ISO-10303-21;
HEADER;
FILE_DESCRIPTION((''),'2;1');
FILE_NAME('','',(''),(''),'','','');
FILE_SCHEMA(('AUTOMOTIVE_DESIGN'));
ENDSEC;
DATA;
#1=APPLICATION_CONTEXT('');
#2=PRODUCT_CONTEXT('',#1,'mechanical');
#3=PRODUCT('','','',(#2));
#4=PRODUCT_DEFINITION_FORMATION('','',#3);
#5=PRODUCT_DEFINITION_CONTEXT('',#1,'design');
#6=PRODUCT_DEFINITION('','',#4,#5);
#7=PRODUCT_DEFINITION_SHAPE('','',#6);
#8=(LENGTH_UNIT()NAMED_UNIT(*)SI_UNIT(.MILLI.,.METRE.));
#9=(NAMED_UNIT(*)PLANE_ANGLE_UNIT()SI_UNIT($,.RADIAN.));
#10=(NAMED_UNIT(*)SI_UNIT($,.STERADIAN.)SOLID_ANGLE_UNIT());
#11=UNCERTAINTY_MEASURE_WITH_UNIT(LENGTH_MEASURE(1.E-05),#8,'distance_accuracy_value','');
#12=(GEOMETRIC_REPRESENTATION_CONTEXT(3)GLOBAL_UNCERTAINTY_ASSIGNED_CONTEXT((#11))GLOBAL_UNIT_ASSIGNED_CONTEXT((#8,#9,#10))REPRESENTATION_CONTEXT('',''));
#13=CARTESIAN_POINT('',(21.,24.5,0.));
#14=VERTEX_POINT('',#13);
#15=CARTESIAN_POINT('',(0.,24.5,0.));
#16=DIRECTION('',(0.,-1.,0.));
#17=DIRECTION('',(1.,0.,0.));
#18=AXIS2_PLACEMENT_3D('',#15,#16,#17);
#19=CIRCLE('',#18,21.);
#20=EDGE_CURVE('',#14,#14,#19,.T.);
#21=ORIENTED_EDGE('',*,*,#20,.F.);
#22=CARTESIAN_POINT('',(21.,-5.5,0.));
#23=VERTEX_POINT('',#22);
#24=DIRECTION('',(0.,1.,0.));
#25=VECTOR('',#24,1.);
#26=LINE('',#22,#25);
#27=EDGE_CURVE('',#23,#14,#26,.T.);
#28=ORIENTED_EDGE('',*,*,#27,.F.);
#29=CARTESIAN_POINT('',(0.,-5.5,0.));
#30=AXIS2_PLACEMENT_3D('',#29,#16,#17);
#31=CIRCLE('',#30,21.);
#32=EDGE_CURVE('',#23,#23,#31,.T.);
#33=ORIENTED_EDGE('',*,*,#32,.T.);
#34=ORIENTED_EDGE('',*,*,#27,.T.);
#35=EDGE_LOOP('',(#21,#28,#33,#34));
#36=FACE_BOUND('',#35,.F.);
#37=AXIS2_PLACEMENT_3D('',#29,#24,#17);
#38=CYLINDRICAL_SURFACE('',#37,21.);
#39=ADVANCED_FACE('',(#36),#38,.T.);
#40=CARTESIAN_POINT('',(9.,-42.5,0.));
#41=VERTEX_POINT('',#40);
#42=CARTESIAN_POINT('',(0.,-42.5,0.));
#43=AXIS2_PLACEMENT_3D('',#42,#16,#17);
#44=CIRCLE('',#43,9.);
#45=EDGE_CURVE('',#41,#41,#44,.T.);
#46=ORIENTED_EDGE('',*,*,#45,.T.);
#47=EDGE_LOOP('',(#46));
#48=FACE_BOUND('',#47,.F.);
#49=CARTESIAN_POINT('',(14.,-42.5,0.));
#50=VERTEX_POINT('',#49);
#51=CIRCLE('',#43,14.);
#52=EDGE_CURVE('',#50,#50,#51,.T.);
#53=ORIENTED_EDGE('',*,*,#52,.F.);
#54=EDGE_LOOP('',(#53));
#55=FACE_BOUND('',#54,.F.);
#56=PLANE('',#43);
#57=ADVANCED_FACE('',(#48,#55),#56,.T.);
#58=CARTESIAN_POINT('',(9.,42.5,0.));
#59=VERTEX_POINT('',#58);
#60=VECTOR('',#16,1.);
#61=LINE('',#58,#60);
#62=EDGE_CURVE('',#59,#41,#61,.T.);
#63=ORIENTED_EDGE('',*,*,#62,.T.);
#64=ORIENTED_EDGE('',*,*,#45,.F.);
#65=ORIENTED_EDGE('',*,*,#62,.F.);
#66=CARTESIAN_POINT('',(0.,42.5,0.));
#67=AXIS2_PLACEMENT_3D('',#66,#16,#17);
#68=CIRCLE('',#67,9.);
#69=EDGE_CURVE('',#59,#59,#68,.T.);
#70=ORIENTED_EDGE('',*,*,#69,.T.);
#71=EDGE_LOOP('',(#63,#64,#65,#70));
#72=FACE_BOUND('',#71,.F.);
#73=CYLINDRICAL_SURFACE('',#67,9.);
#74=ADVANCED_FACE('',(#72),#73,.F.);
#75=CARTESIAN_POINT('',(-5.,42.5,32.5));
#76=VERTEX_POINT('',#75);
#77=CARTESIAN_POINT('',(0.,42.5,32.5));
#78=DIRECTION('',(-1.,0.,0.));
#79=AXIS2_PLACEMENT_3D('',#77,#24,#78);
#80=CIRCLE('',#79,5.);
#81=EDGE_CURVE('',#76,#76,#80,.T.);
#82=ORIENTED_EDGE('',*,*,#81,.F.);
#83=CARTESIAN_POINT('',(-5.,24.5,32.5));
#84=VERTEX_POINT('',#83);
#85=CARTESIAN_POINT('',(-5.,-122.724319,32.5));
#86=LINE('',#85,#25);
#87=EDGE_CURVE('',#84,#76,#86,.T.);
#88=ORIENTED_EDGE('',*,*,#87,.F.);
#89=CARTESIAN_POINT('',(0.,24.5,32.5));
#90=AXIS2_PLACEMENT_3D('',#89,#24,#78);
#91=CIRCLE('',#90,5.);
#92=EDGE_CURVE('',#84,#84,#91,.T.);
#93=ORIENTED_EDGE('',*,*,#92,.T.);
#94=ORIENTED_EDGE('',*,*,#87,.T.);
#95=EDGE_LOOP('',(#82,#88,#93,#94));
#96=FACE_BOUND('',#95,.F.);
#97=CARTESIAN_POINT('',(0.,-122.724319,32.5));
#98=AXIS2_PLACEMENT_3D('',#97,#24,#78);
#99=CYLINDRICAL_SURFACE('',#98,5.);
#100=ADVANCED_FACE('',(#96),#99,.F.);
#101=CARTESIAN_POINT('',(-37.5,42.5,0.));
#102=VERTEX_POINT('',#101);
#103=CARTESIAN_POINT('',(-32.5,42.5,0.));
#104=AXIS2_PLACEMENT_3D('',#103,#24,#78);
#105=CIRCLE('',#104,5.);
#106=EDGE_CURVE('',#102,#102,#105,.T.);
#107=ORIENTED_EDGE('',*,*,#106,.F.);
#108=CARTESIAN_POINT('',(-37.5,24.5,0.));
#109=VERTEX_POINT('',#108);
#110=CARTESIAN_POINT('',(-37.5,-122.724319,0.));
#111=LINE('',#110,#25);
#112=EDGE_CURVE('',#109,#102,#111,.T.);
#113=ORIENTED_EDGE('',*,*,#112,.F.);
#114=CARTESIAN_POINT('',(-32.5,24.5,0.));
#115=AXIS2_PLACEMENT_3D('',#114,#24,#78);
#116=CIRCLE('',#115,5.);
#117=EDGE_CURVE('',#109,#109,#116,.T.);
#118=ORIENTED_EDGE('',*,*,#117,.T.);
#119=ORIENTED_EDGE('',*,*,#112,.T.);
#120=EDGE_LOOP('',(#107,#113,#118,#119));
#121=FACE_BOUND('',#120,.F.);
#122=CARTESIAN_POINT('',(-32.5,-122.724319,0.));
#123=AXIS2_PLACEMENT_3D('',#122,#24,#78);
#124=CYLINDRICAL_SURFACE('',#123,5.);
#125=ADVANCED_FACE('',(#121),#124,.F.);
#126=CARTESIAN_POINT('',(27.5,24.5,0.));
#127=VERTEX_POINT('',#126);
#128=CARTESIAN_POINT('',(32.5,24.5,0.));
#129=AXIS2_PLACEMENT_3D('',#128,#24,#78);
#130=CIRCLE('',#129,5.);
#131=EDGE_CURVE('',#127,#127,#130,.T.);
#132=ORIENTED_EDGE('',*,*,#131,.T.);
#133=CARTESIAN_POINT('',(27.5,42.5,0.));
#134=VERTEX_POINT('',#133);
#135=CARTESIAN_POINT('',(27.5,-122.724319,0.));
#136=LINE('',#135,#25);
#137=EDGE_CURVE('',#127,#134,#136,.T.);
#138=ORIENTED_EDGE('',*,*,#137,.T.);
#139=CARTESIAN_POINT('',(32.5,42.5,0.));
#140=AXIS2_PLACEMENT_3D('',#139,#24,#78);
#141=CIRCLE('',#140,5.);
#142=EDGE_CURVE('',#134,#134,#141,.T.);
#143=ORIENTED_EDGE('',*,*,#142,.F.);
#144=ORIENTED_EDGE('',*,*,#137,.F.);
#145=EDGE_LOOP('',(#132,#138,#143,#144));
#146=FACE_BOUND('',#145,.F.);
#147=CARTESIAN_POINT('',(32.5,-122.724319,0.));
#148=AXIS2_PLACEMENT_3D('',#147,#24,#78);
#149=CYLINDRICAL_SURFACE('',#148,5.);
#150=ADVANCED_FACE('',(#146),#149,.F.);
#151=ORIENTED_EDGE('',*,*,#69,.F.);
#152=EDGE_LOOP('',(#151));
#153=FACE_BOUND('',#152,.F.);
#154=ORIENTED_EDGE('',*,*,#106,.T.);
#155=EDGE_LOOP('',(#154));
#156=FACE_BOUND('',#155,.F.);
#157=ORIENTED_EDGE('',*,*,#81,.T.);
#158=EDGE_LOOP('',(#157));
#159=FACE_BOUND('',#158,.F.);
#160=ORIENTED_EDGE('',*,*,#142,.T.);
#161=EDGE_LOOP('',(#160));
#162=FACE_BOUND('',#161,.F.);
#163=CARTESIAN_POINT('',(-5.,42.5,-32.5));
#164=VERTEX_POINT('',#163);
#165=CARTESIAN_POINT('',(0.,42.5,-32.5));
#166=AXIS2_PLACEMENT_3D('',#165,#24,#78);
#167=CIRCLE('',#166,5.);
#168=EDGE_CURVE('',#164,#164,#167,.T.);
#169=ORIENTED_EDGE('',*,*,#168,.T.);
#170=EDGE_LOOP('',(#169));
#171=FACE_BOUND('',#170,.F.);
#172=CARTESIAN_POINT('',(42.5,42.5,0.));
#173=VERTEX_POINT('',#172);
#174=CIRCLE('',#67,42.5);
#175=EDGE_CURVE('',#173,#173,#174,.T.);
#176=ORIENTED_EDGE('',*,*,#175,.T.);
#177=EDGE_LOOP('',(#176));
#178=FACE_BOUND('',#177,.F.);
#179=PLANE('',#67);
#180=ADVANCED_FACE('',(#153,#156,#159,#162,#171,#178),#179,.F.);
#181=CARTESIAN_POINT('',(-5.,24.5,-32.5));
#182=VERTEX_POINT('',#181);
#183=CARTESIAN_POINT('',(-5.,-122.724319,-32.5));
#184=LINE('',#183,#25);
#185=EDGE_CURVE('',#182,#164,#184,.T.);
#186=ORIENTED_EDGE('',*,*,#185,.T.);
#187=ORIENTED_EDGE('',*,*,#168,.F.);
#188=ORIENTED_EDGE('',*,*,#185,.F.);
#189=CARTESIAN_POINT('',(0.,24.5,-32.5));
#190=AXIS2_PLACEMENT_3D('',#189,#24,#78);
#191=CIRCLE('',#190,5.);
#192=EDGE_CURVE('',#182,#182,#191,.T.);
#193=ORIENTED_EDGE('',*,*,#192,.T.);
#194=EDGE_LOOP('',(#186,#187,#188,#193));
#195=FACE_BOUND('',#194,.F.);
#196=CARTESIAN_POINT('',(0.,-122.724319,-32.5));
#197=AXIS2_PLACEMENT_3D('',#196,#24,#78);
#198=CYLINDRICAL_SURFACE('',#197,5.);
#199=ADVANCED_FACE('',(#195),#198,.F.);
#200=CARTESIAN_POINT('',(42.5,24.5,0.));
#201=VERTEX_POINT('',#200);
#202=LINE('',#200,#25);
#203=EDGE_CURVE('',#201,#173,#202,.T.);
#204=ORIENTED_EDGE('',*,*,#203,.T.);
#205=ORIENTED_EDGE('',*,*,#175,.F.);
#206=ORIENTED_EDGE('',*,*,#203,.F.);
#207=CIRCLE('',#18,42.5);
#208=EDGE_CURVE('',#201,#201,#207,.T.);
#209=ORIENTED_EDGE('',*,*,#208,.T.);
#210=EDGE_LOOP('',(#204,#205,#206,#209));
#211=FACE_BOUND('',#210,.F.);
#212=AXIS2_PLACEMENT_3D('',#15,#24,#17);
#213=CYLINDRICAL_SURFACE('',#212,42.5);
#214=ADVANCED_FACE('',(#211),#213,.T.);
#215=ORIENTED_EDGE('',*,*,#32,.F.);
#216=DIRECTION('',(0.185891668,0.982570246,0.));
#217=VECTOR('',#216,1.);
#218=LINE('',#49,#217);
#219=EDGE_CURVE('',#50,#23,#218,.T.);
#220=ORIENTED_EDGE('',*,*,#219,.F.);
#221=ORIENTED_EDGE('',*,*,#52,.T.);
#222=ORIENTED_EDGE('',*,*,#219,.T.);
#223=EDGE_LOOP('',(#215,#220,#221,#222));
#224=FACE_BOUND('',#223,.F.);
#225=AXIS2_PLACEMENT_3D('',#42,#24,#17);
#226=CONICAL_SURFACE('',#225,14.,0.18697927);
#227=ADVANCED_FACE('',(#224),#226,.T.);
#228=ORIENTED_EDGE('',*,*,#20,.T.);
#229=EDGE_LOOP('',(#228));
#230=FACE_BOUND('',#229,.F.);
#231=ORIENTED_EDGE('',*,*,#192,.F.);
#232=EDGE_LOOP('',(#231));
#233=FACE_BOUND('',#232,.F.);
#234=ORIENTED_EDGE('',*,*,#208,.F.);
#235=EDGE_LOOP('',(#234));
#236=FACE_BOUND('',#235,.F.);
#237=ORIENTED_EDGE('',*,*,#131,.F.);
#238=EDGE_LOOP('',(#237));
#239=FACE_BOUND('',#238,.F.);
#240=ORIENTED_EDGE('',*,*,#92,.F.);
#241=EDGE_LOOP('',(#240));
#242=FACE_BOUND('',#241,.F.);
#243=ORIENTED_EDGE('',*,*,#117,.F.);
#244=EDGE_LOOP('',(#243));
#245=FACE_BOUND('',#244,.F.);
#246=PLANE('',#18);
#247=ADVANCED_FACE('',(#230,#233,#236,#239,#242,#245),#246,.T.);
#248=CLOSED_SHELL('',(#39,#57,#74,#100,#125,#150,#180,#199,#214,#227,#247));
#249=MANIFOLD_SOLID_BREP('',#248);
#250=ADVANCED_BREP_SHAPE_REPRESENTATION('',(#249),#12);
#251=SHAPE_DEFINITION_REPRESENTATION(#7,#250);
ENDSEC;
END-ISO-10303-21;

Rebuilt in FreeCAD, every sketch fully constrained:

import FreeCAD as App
import Part
import Sketcher

V = App.Vector

doc = App.newDocument("Part")
body = doc.addObject("PartDesign::Body", "Body")

sketch1 = body.newObject("Sketcher::SketchObject", "Sketch")
sketch1.AttachmentSupport = (doc.getObject("XY_Plane"), [""])
sketch1.MapMode = "FlatFace"
sketch1.addGeometry(Part.LineSegment(V(9, 42.5, 0), V(9, -42.5, 0)), False)
sketch1.addGeometry(Part.LineSegment(V(9, -42.5, 0), V(14, -42.5, 0)), False)
sketch1.addGeometry(Part.LineSegment(V(14, -42.5, 0), V(21, -5.5, 0)), False)
sketch1.addGeometry(Part.LineSegment(V(21, -5.5, 0), V(21, 24.5, 0)), False)
sketch1.addGeometry(Part.LineSegment(V(21, 24.5, 0), V(42.5, 24.5, 0)), False)
sketch1.addGeometry(Part.LineSegment(V(42.5, 24.5, 0), V(42.5, 42.5, 0)), False)
sketch1.addGeometry(Part.LineSegment(V(42.5, 42.5, 0), V(9, 42.5, 0)), False)
sketch1.addConstraint(Sketcher.Constraint("Coincident", 0, 2, 1, 1))
sketch1.addConstraint(Sketcher.Constraint("Coincident", 1, 2, 2, 1))
sketch1.addConstraint(Sketcher.Constraint("Coincident", 2, 2, 3, 1))
sketch1.addConstraint(Sketcher.Constraint("Coincident", 3, 2, 4, 1))
sketch1.addConstraint(Sketcher.Constraint("Coincident", 4, 2, 5, 1))
sketch1.addConstraint(Sketcher.Constraint("Coincident", 5, 2, 6, 1))
sketch1.addConstraint(Sketcher.Constraint("Coincident", 6, 2, 0, 1))
sketch1.addConstraint(Sketcher.Constraint("Vertical", 0))
sketch1.addConstraint(Sketcher.Constraint("Horizontal", 1))
sketch1.addConstraint(Sketcher.Constraint("Vertical", 3))
sketch1.addConstraint(Sketcher.Constraint("Horizontal", 4))
sketch1.addConstraint(Sketcher.Constraint("Vertical", 5))
sketch1.addConstraint(Sketcher.Constraint("Horizontal", 6))
sketch1.addConstraint(Sketcher.Constraint("DistanceX", 1, 1, 1, 2, 5.0))
sketch1.addConstraint(Sketcher.Constraint("DistanceY", 0, 2, 0, 1, 85.0))
sketch1.addConstraint(Sketcher.Constraint("DistanceY", 3, 1, 3, 2, 30.0))
sketch1.addConstraint(Sketcher.Constraint("DistanceY", 5, 1, 5, 2, 18.0))
sketch1.addConstraint(Sketcher.Constraint("DistanceX", 4, 1, 4, 2, 21.5))
sketch1.addConstraint(Sketcher.Constraint("DistanceX", 6, 2, 6, 1, 33.5))
sketch1.addConstraint(Sketcher.Constraint("DistanceX", -1, 1, 0, 2, 9.0))
sketch1.addConstraint(Sketcher.Constraint("DistanceY", 0, 2, -1, 1, 42.5))
revolution = body.newObject("PartDesign::Revolution", "Revolution")
revolution.Profile = sketch1
revolution.ReferenceAxis = (sketch1, ["V_Axis"])
revolution.Angle = 360

sketch2 = body.newObject("Sketcher::SketchObject", "Sketch001")
sketch2.AttachmentSupport = (doc.getObject("XZ_Plane"), [""])
sketch2.MapMode = "FlatFace"
sketch2.AttachmentOffset = App.Placement(V(0, 0, -24.5), App.Rotation())
sketch2.addGeometry(Part.Circle(V(0, 32.5, 0), V(0, 0, 1), 5), False)
sketch2.addGeometry(Part.Circle(V(32.5, 0, 0), V(0, 0, 1), 5), False)
sketch2.addGeometry(Part.Circle(V(0, -32.5, 0), V(0, 0, 1), 5), False)
sketch2.addGeometry(Part.Circle(V(-32.5, 0, 0), V(0, 0, 1), 5), False)
sketch2.addConstraint(Sketcher.Constraint("Equal", 0, 1))
sketch2.addConstraint(Sketcher.Constraint("Equal", 1, 2))
sketch2.addConstraint(Sketcher.Constraint("Equal", 2, 3))
sketch2.addConstraint(Sketcher.Constraint("Symmetric", 0, 3, 2, 3, -1, 1))
sketch2.addConstraint(Sketcher.Constraint("Symmetric", 1, 3, 3, 3, -1, 1))
sketch2.addConstraint(Sketcher.Constraint("PointOnObject", 0, 3, -2))
sketch2.addConstraint(Sketcher.Constraint("PointOnObject", 1, 3, -1))
sketch2.addConstraint(Sketcher.Constraint("Diameter", 0, 10.0))
sketch2.addConstraint(Sketcher.Constraint("DistanceY", 2, 3, 0, 3, 65.0))
sketch2.addConstraint(Sketcher.Constraint("DistanceX", 3, 3, 1, 3, 65.0))
doc.recompute()
hole = body.newObject("PartDesign::Hole", "Hole")
hole.Profile = sketch2
hole.ThreadType = "None"
hole.Diameter = 10
hole.DepthType = "ThroughAll"

doc.recompute()
